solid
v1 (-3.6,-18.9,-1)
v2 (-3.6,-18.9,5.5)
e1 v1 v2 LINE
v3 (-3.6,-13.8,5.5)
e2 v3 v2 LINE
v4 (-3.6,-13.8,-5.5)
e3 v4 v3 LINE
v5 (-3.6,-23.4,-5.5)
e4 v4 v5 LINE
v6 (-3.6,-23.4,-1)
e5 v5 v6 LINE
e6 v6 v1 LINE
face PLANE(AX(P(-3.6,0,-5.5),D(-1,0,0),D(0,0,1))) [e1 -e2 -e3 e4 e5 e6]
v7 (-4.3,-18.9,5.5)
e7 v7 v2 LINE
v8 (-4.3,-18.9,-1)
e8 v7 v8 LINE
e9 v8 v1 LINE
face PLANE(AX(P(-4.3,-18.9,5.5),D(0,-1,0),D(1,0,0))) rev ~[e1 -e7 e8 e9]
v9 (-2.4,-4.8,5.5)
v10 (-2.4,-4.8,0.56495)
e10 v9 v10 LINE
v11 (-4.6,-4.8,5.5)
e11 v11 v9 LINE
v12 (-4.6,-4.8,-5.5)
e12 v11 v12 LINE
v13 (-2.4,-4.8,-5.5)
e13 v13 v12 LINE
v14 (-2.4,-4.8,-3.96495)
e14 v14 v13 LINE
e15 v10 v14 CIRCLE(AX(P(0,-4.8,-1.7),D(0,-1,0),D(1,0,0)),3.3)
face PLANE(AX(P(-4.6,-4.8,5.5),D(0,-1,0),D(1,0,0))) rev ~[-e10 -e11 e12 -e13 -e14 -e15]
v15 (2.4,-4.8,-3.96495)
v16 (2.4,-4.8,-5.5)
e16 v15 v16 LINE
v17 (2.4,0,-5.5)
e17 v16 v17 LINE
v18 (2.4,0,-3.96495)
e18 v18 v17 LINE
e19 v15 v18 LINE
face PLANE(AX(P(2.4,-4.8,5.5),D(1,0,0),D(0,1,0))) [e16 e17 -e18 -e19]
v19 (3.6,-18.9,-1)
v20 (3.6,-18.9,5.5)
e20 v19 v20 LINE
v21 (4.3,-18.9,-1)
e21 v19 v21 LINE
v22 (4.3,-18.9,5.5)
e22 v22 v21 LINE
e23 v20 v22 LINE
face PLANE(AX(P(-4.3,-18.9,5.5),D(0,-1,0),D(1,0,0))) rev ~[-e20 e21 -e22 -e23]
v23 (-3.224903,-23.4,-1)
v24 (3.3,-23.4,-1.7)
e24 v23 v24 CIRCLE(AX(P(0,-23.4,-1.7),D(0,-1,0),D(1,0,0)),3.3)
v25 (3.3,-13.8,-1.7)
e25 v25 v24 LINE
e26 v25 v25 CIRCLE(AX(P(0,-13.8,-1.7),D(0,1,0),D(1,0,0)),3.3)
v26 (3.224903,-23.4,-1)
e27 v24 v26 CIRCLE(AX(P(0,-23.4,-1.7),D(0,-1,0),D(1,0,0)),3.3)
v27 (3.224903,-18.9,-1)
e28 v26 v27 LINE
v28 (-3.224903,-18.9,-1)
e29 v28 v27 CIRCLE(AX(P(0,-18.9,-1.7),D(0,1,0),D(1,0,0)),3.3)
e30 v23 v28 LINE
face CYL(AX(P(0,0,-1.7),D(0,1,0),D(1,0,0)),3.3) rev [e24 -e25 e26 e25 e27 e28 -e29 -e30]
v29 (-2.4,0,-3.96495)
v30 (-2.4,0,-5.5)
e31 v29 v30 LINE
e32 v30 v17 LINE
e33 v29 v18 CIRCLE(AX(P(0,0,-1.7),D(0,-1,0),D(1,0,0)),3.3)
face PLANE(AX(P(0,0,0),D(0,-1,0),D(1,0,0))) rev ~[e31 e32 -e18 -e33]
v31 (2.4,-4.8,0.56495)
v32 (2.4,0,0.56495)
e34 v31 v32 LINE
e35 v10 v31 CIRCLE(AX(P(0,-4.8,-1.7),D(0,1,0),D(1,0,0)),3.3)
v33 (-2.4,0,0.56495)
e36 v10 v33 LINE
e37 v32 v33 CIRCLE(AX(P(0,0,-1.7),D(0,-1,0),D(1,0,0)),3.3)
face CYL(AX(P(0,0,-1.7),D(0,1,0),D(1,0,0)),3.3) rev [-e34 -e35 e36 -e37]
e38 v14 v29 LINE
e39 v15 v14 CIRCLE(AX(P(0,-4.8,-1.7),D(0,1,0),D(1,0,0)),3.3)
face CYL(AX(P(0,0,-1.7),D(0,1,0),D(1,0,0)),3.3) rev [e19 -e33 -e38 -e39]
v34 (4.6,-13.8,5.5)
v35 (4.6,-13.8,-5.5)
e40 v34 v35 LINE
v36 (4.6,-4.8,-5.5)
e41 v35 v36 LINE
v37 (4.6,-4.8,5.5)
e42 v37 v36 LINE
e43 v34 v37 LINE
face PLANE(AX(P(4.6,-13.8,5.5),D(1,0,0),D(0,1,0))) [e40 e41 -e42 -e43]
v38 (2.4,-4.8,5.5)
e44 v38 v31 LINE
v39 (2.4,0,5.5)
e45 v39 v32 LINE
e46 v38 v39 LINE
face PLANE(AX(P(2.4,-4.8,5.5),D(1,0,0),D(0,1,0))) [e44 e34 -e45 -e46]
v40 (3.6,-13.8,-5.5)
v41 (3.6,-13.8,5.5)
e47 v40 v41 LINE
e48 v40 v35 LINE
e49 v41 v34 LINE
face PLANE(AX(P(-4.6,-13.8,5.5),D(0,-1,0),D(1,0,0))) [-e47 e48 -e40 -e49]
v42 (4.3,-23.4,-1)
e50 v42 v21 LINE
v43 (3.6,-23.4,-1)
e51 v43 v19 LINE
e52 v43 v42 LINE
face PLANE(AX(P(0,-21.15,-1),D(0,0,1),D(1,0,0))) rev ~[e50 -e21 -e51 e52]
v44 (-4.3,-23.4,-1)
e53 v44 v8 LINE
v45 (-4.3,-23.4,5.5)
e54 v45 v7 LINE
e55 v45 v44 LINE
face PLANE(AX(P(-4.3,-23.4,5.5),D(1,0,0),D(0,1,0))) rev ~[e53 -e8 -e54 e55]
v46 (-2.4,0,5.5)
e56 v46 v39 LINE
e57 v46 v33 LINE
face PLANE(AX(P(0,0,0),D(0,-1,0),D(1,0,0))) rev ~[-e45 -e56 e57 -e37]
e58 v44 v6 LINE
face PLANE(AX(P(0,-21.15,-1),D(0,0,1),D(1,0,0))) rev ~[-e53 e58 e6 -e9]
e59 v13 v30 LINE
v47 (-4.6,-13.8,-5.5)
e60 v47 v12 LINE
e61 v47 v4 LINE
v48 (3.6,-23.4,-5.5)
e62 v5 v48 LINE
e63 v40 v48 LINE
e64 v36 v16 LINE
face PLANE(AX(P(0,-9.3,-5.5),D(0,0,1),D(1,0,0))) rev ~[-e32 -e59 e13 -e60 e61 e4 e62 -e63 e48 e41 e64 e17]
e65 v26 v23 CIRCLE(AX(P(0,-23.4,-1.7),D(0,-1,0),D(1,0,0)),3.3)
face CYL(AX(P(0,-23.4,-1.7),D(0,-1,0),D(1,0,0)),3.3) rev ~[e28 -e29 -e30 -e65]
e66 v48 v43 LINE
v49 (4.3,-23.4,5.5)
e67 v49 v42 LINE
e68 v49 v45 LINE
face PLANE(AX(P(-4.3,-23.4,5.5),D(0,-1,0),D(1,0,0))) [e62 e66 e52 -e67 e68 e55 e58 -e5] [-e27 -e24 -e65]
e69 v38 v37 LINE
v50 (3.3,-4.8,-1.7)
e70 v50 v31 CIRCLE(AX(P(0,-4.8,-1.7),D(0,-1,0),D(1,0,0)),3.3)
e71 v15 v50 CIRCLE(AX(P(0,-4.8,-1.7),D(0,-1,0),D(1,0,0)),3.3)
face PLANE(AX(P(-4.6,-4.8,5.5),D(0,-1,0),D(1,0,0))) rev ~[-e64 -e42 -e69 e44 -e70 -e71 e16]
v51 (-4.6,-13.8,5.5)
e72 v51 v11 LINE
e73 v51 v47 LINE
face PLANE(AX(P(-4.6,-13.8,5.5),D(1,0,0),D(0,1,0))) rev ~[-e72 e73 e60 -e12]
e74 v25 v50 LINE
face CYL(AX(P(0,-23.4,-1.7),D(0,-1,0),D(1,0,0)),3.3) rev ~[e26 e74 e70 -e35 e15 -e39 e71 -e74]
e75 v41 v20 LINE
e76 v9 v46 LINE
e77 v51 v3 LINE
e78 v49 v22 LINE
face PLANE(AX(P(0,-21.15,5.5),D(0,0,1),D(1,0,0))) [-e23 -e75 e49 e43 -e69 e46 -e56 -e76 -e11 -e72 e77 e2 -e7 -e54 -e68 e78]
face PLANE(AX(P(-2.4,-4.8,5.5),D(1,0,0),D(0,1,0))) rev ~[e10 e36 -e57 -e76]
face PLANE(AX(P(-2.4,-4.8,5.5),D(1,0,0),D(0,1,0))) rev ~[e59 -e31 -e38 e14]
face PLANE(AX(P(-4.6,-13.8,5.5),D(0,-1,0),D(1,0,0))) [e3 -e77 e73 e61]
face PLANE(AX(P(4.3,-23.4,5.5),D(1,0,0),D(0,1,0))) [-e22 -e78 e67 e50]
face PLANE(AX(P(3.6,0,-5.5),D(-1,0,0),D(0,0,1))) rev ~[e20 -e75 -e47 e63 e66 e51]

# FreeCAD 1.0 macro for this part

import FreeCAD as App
import Part
import Sketcher
from FreeCAD import Vector


def add_polygon(sketch, points):
    """Adds a closed chain of lines whose ends are joined by coincident constraints."""
    first, n = sketch.GeometryCount, len(points)
    for a, b in zip(points, points[1:] + points[:1]):
        sketch.addGeometry(Part.LineSegment(App.Vector(*a, 0), App.Vector(*b, 0)), False)
    for i in range(n):
        sketch.addConstraint(Sketcher.Constraint("Coincident", first + i, 2, first + (i + 1) % n, 1))

doc = App.newDocument("Part")
body = doc.addObject("PartDesign::Body", "Body")

# Sketch on XZ plane
sketch1 = doc.addObject("Sketcher::SketchObject", "Sketch")
body.addObject(sketch1)
sketch1.AttachmentSupport = (doc.XZ_Plane, [""])
sketch1.MapMode = "FlatFace"
add_polygon(sketch1, [(-3.6, 5.5), (-3.6, -5.5), (3.6, -5.5), (3.6, 5.5)])  # lines 0-3
sketch1.addGeometry(Part.Circle(Vector(0, -1.7, 0), Vector(0, 0, 1), 3.3), False)  # 4
sketch1.addConstraint([
    Sketcher.Constraint("Vertical", 0),
    Sketcher.Constraint("Horizontal", 1),
    Sketcher.Constraint("Vertical", 2),
    Sketcher.Constraint("Horizontal", 3),
    Sketcher.Constraint("Symmetric", 0, 2, 2, 2, -1, 1),
    Sketcher.Constraint("PointOnObject", 4, 3, -2),
    Sketcher.Constraint("Diameter", 4, 6.6),
    Sketcher.Constraint("DistanceY", 0, 2, 0, 1, 11.0),
    Sketcher.Constraint("DistanceX", 1, 1, 1, 2, 7.2),
    Sketcher.Constraint("DistanceY", 4, 3, -1, 1, 1.7),
])
pad1 = doc.addObject("PartDesign::Pad", "Pad")
body.addObject(pad1)
pad1.Profile = sketch1
pad1.Length = 23.4

# Sketch on XY plane
sketch2 = doc.addObject("Sketcher::SketchObject", "Sketch001")
body.addObject(sketch2)
sketch2.AttachmentSupport = (doc.XY_Plane, [""])
sketch2.MapMode = "FlatFace"
sketch2.AttachmentOffset = App.Placement(Vector(0, 0, 5.5), App.Rotation())
add_polygon(sketch2, [(2.4, 0), (2.4, -4.8), (3.6, -4.8), (3.6, 0)])  # lines 0-3
add_polygon(sketch2, [(-3.6, 0), (-3.6, -4.8), (-2.4, -4.8), (-2.4, 0)])  # lines 4-7
sketch2.addConstraint([
    Sketcher.Constraint("Vertical", 0),
    Sketcher.Constraint("Horizontal", 1),
    Sketcher.Constraint("Vertical", 2),
    Sketcher.Constraint("Horizontal", 3),
    Sketcher.Constraint("Vertical", 4),
    Sketcher.Constraint("Horizontal", 5),
    Sketcher.Constraint("Vertical", 6),
    Sketcher.Constraint("Horizontal", 7),
    Sketcher.Constraint("Symmetric", 3, 2, 6, 2, -1, 1),
    Sketcher.Constraint("Symmetric", 1, 2, 4, 2, -2),
    Sketcher.Constraint("PointOnObject", 2, 2, -1),
    Sketcher.Constraint("DistanceX", 1, 1, 1, 2, 1.2),
    Sketcher.Constraint("DistanceY", 0, 2, 0, 1, 4.8),
    Sketcher.Constraint("DistanceX", 4, 2, 0, 2, 6.0),
])
pocket1 = doc.addObject("PartDesign::Pocket", "Pocket")
body.addObject(pocket1)
pocket1.Profile = sketch2
pocket1.Type = "ThroughAll"

# Sketch on XY plane
sketch3 = doc.addObject("Sketcher::SketchObject", "Sketch002")
body.addObject(sketch3)
sketch3.AttachmentSupport = (doc.XY_Plane, [""])
sketch3.MapMode = "FlatFace"
sketch3.AttachmentOffset = App.Placement(Vector(0, 0, 5.5), App.Rotation())
add_polygon(sketch3, [(-4.6, -4.8), (-4.6, -13.8), (4.6, -13.8), (4.6, -4.8)])  # lines 0-3
sketch3.addConstraint([
    Sketcher.Constraint("Vertical", 0),
    Sketcher.Constraint("Horizontal", 1),
    Sketcher.Constraint("Vertical", 2),
    Sketcher.Constraint("Horizontal", 3),
    Sketcher.Constraint("DistanceY", 0, 2, 0, 1, 9.0),
    Sketcher.Constraint("DistanceX", 1, 1, 1, 2, 9.2),
    Sketcher.Constraint("DistanceX", 0, 2, -1, 1, 4.6),
    Sketcher.Constraint("DistanceY", 0, 2, -1, 1, 13.8),
])
pad2 = doc.addObject("PartDesign::Pad", "Pad001")
body.addObject(pad2)
pad2.Profile = sketch3
pad2.Type = "UpToLast"
pad2.Reversed = True

# Sketch on XY plane
sketch4 = doc.addObject("Sketcher::SketchObject", "Sketch003")
body.addObject(sketch4)
sketch4.AttachmentSupport = (doc.XY_Plane, [""])
sketch4.MapMode = "FlatFace"
sketch4.AttachmentOffset = App.Placement(Vector(0, 0, 5.5), App.Rotation())
add_polygon(sketch4, [(-4.3, -18.9), (-4.3, -23.4), (4.3, -23.4), (4.3, -18.9)])  # lines 0-3
sketch4.addConstraint([
    Sketcher.Constraint("Vertical", 0),
    Sketcher.Constraint("Horizontal", 1),
    Sketcher.Constraint("Vertical", 2),
    Sketcher.Constraint("Horizontal", 3),
    Sketcher.Constraint("DistanceX", 1, 1, 1, 2, 8.6),
    Sketcher.Constraint("DistanceY", 0, 2, 0, 1, 4.5),
    Sketcher.Constraint("DistanceX", 0, 2, -1, 1, 4.3),
    Sketcher.Constraint("DistanceY", 0, 2, -1, 1, 23.4),
])
pad3 = doc.addObject("PartDesign::Pad", "Pad002")
body.addObject(pad3)
pad3.Profile = sketch4
pad3.Length = 6.5
pad3.Reversed = True

# Sketch on XZ plane
sketch5 = doc.addObject("Sketcher::SketchObject", "Sketch004")
body.addObject(sketch5)
sketch5.AttachmentSupport = (doc.XZ_Plane, [""])
sketch5.MapMode = "FlatFace"
sketch5.AttachmentOffset = App.Placement(Vector(0, 0, 23.4), App.Rotation())
sketch5.addGeometry(Part.Circle(Vector(0, -1.7, 0), Vector(0, 0, 1), 3.3), False)
sketch5.addConstraint([
    Sketcher.Constraint("PointOnObject", 0, 3, -2),
    Sketcher.Constraint("Diameter", 0, 6.6),
    Sketcher.Constraint("DistanceY", 0, 3, -1, 1, 1.7),
])
pocket2 = doc.addObject("PartDesign::Pocket", "Pocket001")
body.addObject(pocket2)
pocket2.Profile = sketch5
pocket2.Type = "ThroughAll"

doc.recompute()
